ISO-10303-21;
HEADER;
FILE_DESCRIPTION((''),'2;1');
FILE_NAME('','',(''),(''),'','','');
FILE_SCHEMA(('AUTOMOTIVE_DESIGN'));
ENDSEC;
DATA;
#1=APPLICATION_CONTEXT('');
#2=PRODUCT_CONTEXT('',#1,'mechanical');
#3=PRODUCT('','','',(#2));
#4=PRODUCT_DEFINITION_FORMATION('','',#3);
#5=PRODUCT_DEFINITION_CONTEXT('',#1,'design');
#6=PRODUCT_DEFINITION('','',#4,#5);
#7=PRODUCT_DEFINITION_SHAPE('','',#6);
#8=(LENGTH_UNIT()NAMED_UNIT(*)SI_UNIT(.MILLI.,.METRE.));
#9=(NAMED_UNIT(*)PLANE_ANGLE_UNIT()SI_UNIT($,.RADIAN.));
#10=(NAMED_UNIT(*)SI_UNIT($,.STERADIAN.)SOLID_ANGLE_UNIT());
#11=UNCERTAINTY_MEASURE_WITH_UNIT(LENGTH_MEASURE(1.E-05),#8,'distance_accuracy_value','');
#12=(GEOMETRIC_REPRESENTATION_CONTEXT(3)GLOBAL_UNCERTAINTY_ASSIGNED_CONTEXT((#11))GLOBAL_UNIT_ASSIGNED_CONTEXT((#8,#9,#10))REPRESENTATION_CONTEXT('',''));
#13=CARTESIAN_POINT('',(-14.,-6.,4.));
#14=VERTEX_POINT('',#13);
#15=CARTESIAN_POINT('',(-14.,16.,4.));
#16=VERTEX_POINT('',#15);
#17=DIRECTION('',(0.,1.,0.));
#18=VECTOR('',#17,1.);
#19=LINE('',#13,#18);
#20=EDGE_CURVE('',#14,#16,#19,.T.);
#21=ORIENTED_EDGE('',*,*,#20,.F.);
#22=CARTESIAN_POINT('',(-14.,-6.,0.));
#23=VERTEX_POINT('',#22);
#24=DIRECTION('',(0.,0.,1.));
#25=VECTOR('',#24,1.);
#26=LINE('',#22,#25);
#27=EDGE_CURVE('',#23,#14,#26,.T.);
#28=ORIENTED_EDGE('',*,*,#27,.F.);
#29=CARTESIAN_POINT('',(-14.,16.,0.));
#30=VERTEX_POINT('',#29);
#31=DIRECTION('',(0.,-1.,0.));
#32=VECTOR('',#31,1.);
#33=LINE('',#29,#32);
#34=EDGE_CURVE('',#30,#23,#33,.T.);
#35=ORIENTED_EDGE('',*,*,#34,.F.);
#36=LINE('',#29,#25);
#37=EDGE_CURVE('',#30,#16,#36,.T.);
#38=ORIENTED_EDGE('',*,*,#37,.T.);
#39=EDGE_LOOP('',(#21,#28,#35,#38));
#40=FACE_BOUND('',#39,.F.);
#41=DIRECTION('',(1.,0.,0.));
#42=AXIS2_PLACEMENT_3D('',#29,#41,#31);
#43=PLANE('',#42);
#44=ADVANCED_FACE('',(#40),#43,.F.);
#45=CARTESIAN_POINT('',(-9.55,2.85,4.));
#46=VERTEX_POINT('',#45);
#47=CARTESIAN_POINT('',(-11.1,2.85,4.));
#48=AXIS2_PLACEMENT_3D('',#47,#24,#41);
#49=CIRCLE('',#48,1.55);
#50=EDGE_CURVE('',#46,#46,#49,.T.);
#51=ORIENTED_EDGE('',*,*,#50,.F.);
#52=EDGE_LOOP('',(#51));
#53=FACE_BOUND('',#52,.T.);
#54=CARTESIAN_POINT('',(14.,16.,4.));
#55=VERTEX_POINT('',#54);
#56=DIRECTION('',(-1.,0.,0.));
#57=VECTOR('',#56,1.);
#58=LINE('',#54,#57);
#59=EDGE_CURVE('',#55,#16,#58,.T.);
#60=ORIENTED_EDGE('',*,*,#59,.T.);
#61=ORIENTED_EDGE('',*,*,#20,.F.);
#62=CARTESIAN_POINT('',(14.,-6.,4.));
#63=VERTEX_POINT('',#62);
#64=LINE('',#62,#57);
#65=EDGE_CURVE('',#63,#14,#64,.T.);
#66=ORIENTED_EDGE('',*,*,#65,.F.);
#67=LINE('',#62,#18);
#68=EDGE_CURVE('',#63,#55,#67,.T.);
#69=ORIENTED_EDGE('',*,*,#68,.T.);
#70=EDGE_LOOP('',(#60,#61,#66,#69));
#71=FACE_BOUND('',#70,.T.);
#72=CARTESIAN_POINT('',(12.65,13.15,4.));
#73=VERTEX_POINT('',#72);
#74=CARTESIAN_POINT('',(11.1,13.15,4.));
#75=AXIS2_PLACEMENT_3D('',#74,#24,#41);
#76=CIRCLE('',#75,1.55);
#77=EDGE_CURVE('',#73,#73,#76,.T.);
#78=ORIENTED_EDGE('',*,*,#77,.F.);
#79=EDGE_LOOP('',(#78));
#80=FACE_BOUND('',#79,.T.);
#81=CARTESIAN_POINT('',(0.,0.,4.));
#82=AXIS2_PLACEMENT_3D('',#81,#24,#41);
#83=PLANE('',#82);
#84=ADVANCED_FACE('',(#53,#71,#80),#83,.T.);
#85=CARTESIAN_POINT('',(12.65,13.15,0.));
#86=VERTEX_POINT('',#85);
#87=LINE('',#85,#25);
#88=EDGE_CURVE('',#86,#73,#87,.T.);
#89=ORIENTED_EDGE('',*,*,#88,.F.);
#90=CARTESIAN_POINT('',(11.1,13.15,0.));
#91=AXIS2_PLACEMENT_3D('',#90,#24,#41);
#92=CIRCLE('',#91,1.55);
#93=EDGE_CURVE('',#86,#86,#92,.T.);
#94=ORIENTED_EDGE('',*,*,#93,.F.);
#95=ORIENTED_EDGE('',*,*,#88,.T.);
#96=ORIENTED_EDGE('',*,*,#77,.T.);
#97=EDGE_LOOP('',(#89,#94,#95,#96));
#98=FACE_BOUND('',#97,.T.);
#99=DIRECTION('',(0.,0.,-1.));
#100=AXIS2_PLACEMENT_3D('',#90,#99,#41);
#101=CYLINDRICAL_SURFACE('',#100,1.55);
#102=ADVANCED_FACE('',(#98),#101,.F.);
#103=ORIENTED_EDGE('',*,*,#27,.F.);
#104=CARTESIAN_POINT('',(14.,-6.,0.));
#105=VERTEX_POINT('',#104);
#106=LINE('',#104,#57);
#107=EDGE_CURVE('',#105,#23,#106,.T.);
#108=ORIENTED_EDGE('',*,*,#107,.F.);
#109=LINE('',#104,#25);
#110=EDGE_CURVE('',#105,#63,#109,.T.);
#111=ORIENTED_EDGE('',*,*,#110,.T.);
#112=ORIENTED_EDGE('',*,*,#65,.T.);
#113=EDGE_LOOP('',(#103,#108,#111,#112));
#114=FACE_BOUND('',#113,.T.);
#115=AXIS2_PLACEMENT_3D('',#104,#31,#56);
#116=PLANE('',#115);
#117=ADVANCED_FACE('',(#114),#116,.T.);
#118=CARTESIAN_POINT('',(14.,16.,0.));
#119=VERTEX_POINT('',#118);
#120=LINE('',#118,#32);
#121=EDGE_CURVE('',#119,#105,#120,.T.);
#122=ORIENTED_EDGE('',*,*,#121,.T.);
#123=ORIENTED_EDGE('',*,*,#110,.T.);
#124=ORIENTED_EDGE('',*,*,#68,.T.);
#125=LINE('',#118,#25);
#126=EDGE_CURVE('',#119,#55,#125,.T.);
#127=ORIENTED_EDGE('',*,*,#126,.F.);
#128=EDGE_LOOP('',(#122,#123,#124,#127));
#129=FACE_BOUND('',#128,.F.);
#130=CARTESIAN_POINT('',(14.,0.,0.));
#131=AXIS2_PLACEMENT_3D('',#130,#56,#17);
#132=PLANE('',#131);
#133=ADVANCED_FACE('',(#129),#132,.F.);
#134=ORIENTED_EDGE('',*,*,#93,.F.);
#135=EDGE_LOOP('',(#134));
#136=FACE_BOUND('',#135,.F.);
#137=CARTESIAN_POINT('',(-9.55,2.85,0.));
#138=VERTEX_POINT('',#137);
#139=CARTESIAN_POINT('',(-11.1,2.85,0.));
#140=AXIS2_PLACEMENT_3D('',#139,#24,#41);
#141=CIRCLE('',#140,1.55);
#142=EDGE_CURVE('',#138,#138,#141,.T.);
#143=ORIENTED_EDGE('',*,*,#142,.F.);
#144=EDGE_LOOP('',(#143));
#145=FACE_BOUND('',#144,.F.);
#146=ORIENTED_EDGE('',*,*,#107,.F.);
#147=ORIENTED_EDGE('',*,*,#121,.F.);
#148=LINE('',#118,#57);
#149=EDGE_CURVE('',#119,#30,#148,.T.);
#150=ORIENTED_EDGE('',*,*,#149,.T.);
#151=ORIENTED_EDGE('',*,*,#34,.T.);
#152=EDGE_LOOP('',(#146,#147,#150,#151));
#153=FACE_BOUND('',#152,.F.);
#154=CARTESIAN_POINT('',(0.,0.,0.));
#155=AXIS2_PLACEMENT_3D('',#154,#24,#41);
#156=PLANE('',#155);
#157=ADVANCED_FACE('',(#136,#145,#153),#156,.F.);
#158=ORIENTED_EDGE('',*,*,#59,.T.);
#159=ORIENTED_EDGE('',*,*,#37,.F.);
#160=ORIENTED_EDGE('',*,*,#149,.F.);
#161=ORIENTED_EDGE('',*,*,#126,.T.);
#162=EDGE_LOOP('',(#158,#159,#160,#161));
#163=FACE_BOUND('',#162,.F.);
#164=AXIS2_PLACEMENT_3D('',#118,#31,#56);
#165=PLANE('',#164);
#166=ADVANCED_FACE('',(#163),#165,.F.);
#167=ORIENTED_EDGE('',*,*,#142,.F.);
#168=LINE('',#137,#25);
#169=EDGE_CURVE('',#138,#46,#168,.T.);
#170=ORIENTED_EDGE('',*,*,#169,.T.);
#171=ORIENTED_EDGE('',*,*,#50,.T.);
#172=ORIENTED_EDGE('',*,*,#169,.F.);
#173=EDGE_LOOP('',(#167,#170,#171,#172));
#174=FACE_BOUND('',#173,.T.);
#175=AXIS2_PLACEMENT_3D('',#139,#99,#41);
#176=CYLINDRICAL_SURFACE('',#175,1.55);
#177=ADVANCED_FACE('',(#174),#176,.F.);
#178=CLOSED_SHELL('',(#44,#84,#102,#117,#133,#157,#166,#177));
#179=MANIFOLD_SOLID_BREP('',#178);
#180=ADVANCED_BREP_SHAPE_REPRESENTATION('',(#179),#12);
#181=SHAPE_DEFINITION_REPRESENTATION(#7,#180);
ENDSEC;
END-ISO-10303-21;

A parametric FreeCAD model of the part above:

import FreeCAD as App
import Part
import Sketcher
from FreeCAD import Vector


def add_polygon(sketch, points):
    """Adds a closed chain of lines whose ends are joined by coincident constraints."""
    first, n = sketch.GeometryCount, len(points)
    for a, b in zip(points, points[1:] + points[:1]):
        sketch.addGeometry(Part.LineSegment(App.Vector(*a, 0), App.Vector(*b, 0)), False)
    for i in range(n):
        sketch.addConstraint(Sketcher.Constraint("Coincident", first + i, 2, first + (i + 1) % n, 1))

doc = App.newDocument("Part")
body = doc.addObject("PartDesign::Body", "Body")

# Sketch on XY plane
sketch1 = doc.addObject("Sketcher::SketchObject", "Sketch")
body.addObject(sketch1)
sketch1.AttachmentSupport = (doc.XY_Plane, [""])
sketch1.MapMode = "FlatFace"
add_polygon(sketch1, [(-14, 16), (-14, -6), (14, -6), (14, 16)])  # lines 0-3
sketch1.addGeometry(Part.Circle(Vector(-11.1, 2.9, 0), Vector(0, 0, 1), 1.6), False)  # 4
sketch1.addGeometry(Part.Circle(Vector(11.1, 13.2, 0), Vector(0, 0, 1), 1.6), False)  # 5
sketch1.addConstraint([
    Sketcher.Constraint("Vertical", 0),
    Sketcher.Constraint("Horizontal", 1),
    Sketcher.Constraint("Vertical", 2),
    Sketcher.Constraint("Horizontal", 3),
    Sketcher.Constraint("Equal", 4, 5),
    Sketcher.Constraint("Diameter", 4, 3.1),
    Sketcher.Constraint("DistanceX", 1, 1, 1, 2, 28.0),
    Sketcher.Constraint("DistanceY", 0, 2, 0, 1, 22.0),
    Sketcher.Constraint("DistanceY", -1, 1, 2, 2, 16.0),
    Sketcher.Constraint("DistanceX", 4, 3, 5, 3, 22.2),
    Sketcher.Constraint("DistanceY", 4, 3, 5, 3, 10.3),
    Sketcher.Constraint("DistanceX", 0, 2, -1, 1, 14.0),
    Sketcher.Constraint("DistanceX", 4, 3, -1, 1, 11.1),
    Sketcher.Constraint("DistanceY", -1, 1, 4, 3, 2.85),
])
pad1 = doc.addObject("PartDesign::Pad", "Pad")
body.addObject(pad1)
pad1.Profile = sketch1
pad1.Length = 4

doc.recompute()
